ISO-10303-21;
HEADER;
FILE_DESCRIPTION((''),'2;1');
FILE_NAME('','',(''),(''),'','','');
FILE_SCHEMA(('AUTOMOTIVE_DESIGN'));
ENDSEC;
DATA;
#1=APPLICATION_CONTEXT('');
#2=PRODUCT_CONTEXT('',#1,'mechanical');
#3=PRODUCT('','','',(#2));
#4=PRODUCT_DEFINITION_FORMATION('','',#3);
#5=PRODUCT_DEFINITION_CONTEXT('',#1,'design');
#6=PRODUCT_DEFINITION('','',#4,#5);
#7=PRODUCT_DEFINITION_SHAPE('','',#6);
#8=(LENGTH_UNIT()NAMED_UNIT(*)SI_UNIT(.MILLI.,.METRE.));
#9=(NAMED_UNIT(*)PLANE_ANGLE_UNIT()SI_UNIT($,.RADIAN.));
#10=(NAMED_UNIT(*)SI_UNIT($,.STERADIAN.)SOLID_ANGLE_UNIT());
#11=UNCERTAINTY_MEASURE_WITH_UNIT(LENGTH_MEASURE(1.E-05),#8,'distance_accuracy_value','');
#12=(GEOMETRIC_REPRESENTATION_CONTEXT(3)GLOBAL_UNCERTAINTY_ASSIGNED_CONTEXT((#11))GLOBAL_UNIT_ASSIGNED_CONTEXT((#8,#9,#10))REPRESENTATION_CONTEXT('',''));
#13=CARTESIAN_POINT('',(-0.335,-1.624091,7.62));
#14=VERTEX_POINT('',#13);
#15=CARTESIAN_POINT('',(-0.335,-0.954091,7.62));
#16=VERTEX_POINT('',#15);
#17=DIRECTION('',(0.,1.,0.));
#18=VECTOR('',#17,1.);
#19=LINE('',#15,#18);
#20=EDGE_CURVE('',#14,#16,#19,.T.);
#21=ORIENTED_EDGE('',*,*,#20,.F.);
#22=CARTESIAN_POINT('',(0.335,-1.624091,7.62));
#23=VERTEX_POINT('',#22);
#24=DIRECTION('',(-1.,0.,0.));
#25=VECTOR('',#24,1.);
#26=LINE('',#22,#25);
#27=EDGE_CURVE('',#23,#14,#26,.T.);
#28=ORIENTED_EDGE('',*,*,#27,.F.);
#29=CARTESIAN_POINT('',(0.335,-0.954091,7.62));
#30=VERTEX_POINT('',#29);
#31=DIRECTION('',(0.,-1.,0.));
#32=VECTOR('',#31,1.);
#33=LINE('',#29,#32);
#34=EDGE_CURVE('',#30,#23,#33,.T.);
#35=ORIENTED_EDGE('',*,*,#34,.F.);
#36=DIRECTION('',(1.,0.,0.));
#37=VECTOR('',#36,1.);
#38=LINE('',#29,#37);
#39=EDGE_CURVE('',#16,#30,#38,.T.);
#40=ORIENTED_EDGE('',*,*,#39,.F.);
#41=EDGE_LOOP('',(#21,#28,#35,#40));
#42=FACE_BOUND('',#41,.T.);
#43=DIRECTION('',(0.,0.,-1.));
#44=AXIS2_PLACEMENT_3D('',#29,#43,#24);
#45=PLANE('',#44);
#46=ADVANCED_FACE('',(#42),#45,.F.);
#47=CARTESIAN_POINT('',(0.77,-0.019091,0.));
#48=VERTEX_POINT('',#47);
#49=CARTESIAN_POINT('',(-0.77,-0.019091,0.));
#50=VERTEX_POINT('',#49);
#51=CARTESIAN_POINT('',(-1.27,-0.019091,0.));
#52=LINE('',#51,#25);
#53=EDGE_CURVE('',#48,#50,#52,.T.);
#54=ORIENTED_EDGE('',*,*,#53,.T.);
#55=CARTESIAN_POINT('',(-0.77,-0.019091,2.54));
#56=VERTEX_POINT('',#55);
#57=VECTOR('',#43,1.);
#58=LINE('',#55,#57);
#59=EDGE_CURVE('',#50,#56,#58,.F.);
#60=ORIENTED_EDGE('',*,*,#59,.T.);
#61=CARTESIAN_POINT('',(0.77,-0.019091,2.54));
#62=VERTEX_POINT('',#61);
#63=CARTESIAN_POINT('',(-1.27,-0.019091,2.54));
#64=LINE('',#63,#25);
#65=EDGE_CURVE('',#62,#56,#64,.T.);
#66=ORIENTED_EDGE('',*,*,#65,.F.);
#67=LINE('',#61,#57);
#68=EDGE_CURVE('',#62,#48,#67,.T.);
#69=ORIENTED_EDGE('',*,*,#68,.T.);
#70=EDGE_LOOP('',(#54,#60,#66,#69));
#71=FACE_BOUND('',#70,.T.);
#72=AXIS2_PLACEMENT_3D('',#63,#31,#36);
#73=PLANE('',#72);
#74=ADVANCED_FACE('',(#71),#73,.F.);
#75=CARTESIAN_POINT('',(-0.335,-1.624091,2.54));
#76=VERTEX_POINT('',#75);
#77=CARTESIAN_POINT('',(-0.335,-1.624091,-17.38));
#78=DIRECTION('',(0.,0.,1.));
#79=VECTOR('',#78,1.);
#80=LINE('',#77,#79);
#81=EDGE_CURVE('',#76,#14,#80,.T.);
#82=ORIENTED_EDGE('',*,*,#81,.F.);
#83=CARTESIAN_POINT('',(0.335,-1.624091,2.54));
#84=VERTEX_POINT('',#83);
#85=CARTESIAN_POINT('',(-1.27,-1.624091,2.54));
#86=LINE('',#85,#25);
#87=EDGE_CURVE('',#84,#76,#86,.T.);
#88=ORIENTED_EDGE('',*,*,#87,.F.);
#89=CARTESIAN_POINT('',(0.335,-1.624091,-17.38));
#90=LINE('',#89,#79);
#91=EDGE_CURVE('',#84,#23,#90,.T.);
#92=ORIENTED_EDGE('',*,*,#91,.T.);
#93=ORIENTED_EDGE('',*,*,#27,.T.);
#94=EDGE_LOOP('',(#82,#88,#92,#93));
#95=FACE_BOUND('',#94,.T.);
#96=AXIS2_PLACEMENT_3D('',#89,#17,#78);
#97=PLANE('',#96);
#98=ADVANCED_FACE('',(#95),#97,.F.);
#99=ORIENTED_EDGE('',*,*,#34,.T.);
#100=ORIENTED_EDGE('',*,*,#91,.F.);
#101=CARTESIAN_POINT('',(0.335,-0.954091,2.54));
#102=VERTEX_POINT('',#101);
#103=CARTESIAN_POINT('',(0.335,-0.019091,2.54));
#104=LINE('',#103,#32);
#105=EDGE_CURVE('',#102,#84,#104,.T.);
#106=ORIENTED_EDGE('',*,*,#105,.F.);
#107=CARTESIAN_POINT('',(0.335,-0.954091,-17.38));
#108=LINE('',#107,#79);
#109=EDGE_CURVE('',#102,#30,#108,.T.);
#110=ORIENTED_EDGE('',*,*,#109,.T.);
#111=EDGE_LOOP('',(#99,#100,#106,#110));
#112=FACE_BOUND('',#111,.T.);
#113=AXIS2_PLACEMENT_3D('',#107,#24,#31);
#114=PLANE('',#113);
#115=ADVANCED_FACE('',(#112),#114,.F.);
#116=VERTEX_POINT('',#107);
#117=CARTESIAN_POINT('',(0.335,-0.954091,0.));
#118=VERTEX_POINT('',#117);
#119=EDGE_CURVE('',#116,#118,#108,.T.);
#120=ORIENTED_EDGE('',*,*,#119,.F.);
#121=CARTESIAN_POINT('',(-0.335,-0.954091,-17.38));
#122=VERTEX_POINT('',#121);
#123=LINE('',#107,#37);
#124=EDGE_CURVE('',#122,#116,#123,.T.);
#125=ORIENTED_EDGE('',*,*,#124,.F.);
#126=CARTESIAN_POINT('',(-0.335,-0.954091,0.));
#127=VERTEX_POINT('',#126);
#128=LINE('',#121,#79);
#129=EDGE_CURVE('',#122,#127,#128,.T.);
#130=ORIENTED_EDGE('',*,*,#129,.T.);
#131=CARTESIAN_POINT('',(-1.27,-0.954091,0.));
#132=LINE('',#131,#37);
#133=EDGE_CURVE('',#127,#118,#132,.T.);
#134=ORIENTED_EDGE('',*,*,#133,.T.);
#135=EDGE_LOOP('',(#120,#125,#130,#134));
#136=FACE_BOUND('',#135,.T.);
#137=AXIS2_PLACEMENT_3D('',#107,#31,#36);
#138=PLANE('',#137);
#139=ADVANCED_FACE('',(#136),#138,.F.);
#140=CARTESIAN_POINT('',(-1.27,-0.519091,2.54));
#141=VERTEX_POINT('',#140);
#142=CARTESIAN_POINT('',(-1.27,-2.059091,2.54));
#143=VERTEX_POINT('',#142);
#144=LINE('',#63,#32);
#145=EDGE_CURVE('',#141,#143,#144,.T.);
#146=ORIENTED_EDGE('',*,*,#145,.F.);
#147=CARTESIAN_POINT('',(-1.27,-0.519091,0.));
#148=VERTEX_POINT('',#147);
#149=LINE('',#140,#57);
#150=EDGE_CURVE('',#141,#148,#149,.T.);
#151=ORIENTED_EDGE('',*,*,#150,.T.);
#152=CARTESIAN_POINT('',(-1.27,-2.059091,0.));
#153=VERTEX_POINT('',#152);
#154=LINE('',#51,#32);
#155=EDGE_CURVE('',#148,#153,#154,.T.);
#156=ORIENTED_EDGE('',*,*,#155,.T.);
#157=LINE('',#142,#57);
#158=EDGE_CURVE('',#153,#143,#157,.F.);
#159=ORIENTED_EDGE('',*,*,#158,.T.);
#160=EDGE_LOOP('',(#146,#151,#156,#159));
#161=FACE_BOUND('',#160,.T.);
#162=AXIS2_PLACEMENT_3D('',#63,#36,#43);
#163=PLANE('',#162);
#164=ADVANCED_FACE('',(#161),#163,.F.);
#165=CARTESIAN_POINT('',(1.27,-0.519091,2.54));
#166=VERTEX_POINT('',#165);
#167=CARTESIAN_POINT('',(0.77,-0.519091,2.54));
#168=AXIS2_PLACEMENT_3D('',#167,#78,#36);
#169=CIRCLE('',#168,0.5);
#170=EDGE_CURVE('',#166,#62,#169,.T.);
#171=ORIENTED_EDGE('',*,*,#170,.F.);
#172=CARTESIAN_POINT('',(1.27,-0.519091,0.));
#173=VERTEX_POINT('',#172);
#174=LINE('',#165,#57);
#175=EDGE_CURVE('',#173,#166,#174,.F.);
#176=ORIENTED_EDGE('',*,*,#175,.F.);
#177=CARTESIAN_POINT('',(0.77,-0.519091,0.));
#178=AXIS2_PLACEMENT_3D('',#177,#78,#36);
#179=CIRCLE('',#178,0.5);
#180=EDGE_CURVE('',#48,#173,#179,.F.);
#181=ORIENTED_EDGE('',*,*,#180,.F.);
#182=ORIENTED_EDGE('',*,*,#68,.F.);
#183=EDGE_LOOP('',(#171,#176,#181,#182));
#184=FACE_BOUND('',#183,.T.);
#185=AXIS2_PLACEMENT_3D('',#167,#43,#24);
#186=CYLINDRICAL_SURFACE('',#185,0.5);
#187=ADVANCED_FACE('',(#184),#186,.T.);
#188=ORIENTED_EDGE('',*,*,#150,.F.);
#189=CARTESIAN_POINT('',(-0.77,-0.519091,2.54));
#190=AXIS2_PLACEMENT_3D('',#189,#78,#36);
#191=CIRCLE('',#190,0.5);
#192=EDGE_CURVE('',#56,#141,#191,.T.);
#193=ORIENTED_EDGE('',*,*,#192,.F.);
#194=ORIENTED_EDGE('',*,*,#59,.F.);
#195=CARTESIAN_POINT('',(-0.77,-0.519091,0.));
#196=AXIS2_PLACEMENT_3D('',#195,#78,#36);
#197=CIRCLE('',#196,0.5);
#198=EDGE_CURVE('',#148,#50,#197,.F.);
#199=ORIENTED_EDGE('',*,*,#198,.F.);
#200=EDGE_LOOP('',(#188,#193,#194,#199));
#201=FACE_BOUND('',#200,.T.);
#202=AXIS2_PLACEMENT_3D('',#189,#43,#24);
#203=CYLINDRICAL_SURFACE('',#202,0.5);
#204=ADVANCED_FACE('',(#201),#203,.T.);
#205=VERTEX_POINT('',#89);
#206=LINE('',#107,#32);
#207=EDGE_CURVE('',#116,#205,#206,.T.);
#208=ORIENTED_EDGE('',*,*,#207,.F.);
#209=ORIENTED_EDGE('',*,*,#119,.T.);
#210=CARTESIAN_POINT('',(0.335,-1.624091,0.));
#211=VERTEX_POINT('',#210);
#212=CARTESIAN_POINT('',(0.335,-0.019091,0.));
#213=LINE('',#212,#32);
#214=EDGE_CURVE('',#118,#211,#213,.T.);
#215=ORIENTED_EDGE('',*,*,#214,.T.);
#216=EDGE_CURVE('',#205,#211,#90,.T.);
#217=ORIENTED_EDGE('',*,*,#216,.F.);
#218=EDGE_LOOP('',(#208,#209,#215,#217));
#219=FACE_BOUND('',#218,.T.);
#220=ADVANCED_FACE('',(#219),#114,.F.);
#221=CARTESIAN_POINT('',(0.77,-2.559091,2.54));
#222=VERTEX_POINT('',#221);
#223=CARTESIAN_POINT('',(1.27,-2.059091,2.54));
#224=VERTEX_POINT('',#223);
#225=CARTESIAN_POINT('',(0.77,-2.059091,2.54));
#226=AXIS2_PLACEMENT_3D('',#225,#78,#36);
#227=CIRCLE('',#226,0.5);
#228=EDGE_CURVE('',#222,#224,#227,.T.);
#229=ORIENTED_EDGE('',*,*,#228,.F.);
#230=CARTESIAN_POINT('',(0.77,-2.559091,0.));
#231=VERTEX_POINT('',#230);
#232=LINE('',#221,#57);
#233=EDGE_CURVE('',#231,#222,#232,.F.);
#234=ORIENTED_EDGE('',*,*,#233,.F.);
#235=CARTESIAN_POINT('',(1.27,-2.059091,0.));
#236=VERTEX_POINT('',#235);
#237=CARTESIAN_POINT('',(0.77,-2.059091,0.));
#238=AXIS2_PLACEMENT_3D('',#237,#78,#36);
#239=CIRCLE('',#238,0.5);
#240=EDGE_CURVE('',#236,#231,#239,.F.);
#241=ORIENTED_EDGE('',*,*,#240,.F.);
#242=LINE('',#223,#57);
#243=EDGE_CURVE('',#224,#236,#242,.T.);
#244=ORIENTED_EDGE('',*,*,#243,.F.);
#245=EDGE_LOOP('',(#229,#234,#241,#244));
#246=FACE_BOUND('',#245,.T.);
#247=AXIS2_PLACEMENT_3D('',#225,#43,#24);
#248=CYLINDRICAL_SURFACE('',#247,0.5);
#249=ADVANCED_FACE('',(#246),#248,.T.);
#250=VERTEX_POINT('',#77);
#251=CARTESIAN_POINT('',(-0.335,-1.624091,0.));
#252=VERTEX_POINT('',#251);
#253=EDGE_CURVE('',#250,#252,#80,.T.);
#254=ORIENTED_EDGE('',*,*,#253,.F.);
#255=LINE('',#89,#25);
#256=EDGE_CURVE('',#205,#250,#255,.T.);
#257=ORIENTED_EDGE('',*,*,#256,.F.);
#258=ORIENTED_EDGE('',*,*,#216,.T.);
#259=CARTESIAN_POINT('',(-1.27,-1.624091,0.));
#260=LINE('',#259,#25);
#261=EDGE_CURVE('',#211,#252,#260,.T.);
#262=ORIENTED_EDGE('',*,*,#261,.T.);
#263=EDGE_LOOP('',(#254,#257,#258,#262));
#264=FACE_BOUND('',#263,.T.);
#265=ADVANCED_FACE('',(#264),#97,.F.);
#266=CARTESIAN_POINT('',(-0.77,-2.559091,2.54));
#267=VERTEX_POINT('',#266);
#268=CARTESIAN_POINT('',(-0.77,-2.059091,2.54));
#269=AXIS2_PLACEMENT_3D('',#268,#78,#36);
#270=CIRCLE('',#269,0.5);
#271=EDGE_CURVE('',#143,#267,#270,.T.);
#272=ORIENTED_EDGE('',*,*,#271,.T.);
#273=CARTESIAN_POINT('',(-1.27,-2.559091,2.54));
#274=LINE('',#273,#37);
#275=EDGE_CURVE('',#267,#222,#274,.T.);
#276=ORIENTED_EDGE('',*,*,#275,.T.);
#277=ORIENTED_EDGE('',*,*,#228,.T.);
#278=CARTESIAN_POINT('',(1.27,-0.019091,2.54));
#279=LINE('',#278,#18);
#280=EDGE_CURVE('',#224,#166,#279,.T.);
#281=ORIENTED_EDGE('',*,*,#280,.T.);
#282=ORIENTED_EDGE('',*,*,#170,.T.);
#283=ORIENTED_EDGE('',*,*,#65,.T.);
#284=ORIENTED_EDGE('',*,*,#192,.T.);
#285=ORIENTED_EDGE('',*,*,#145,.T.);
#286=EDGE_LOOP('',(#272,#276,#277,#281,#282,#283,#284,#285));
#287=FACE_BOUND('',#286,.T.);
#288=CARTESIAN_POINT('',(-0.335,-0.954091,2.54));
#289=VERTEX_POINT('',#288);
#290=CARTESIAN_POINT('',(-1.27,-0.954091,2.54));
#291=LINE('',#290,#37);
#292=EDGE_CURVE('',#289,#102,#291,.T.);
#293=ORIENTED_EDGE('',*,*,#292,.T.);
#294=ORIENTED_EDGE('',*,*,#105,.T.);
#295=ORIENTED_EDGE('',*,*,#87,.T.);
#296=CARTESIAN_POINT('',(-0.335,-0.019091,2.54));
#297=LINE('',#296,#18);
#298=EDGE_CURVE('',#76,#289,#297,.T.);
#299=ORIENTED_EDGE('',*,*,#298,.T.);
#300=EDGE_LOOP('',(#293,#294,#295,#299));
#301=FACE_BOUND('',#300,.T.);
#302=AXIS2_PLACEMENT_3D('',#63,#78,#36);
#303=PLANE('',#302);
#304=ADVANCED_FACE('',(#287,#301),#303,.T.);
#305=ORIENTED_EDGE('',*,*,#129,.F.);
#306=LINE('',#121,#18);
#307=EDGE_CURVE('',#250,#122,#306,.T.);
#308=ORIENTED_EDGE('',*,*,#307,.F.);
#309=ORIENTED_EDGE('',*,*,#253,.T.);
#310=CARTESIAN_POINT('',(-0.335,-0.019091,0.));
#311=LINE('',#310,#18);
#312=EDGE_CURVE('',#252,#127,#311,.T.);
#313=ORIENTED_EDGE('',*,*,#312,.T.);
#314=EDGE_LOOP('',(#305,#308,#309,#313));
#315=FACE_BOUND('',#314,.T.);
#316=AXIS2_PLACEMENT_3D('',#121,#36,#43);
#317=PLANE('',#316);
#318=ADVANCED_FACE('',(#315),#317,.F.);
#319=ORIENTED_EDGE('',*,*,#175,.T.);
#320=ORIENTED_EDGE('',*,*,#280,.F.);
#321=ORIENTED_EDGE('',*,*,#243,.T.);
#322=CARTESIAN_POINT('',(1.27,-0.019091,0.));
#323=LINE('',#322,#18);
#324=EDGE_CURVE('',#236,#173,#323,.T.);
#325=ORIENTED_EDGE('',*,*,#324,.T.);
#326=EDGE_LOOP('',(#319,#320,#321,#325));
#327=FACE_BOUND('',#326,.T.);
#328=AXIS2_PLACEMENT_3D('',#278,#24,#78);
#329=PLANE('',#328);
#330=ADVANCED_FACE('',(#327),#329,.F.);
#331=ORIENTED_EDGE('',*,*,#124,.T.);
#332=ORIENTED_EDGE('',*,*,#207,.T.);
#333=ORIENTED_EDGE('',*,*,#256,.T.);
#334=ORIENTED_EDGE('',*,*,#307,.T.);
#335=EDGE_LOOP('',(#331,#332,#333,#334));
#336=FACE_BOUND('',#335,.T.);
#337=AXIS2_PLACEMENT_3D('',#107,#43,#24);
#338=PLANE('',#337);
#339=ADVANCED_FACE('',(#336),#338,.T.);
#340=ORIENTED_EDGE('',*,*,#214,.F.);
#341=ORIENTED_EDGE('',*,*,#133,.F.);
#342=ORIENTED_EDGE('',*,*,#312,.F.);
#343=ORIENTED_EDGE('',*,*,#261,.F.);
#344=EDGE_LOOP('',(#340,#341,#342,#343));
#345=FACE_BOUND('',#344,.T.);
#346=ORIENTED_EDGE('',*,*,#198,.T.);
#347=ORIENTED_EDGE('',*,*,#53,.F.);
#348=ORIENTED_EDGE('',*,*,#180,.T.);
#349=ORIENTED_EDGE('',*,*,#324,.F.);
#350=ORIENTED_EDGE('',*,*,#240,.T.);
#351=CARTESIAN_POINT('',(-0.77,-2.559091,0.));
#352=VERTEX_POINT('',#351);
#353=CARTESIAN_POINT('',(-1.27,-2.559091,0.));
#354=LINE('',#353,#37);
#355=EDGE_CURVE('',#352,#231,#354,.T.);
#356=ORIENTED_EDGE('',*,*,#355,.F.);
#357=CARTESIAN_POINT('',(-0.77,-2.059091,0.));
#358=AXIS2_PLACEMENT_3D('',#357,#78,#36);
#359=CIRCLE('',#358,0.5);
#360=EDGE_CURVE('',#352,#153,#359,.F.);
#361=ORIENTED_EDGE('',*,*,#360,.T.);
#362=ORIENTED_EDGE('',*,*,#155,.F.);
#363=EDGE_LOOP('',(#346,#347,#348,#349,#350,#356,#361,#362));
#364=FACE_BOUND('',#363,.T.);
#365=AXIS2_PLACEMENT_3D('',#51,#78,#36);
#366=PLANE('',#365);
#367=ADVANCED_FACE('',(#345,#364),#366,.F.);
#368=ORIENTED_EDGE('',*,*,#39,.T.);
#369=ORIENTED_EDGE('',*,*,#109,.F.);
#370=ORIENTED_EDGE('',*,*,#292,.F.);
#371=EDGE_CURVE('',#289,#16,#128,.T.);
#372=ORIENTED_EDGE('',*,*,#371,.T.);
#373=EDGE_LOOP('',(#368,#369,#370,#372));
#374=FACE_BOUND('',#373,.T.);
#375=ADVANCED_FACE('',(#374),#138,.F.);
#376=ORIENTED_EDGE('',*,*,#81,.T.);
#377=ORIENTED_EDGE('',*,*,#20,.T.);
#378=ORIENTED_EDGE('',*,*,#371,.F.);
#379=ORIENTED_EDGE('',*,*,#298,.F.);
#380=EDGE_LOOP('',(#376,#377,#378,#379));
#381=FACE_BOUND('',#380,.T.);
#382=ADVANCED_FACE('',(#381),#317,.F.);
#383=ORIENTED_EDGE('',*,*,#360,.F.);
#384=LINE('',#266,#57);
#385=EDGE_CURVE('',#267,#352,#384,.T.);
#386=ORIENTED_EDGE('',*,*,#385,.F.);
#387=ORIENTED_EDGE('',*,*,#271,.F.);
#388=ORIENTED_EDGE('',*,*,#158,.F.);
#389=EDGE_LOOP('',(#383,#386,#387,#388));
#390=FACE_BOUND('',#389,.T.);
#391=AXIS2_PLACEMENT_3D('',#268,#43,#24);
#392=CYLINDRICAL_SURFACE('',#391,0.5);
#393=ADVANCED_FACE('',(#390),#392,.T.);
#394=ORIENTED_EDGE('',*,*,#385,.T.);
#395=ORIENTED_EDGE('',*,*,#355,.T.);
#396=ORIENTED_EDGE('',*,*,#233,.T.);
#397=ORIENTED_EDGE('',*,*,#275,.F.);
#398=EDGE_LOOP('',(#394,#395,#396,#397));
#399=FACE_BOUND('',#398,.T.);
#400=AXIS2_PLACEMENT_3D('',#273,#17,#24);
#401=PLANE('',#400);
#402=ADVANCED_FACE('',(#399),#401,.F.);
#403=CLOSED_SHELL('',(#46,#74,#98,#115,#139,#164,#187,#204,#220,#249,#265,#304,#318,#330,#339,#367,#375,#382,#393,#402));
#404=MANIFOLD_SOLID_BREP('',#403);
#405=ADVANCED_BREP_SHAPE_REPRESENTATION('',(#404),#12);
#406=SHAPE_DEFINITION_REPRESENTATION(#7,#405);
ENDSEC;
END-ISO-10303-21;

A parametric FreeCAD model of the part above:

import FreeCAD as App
import Part
import Sketcher
from FreeCAD import Vector
Q = App.Units.Quantity


def edges_at(feature, points):
    """Names of the edges that pass closest to the given points."""
    edges = feature.Shape.Edges
    near = lambda p: min(range(len(edges)), key=lambda i: edges[i].distToShape(Part.Vertex(*p))[0])
    return sorted({f"Edge{near(p) + 1}" for p in points})


def add_polygon(sketch, points):
    """Adds a closed chain of lines whose ends are joined by coincident constraints."""
    first, n = sketch.GeometryCount, len(points)
    for a, b in zip(points, points[1:] + points[:1]):
        sketch.addGeometry(Part.LineSegment(App.Vector(*a, 0), App.Vector(*b, 0)), False)
    for i in range(n):
        sketch.addConstraint(Sketcher.Constraint("Coincident", first + i, 2, first + (i + 1) % n, 1))

doc = App.newDocument("Part")
body = doc.addObject("PartDesign::Body", "Body")

# Sketch on XY plane
sketch1 = doc.addObject("Sketcher::SketchObject", "Sketch")
body.addObject(sketch1)
sketch1.AttachmentSupport = (doc.XY_Plane, [""])
sketch1.MapMode = "FlatFace"
add_polygon(sketch1, [(-1.3, 0), (-1.3, -2.6), (1.3, -2.6), (1.3, 0)])  # lines 0-3
sketch1.addConstraint(Sketcher.Constraint("Vertical", 0))
sketch1.addConstraint(Sketcher.Constraint("Horizontal", 1))
sketch1.addConstraint(Sketcher.Constraint("Vertical", 2))
sketch1.addConstraint(Sketcher.Constraint("Horizontal", 3))
sketch1.addConstraint(Sketcher.Constraint("Equal", 3, 0))
sketch1.addConstraint(Sketcher.Constraint("DistanceX", 1, 1, 1, 2, Q("2.54 mm")))
sketch1.addConstraint(Sketcher.Constraint("DistanceX", 0, 2, -1, 1, Q("1.27 mm")))
sketch1.addConstraint(Sketcher.Constraint("DistanceY", 0, 2, -1, 1, Q("2.559091 mm")))
pad1 = doc.addObject("PartDesign::Pad", "Pad")
body.addObject(pad1)
pad1.Profile = sketch1
pad1.Length = 2.54

# Sketch on XY plane
sketch2 = doc.addObject("Sketcher::SketchObject", "Sketch001")
body.addObject(sketch2)
sketch2.AttachmentSupport = (doc.XY_Plane, [""])
sketch2.MapMode = "FlatFace"
sketch2.AttachmentOffset = App.Placement(Vector(0, 0, 7.62), App.Rotation())
add_polygon(sketch2, [(0.3, -1), (0.3, -1.6), (-0.3, -1.6), (-0.3, -1)])  # lines 0-3
sketch2.addConstraint(Sketcher.Constraint("Vertical", 0))
sketch2.addConstraint(Sketcher.Constraint("Horizontal", 1))
sketch2.addConstraint(Sketcher.Constraint("Vertical", 2))
sketch2.addConstraint(Sketcher.Constraint("Horizontal", 3))
sketch2.addConstraint(Sketcher.Constraint("Equal", 3, 0))
sketch2.addConstraint(Sketcher.Constraint("DistanceX", 1, 2, 1, 1, Q("0.67 mm")))
sketch2.addConstraint(Sketcher.Constraint("DistanceX", -1, 1, 0, 2, Q("0.335 mm")))
sketch2.addConstraint(Sketcher.Constraint("DistanceY", 0, 2, -1, 1, Q("1.624091 mm")))

# Sketch on XZ plane
sketch3 = doc.addObject("Sketcher::SketchObject", "Sketch002")
body.addObject(sketch3)
sketch3.AttachmentSupport = (doc.XZ_Plane, [""])
sketch3.MapMode = "FlatFace"
sketch3.AttachmentOffset = App.Placement(Vector(0, 0, 1.299091), App.Rotation())
sketch3.addGeometry(Part.LineSegment(Vector(0, -17, 0), Vector(0, 8, 0)), False)
sketch3.addConstraint(Sketcher.Constraint("Vertical", 0))
sketch3.addConstraint(Sketcher.Constraint("PointOnObject", 0, 1, -2))
sketch3.addConstraint(Sketcher.Constraint("DistanceY", 0, 1, 0, 2, Q("25 mm")))
sketch3.addConstraint(Sketcher.Constraint("DistanceY", 0, 1, -1, 1, Q("17.38 mm")))
doc.recompute()

additivepipe = doc.addObject("PartDesign::AdditivePipe", "AdditivePipe")
body.addObject(additivepipe)
additivepipe.Profile = sketch2
additivepipe.Spine = (sketch3, ["Edge1"])
doc.recompute()

fillet = doc.addObject("PartDesign::Fillet", "Fillet")
body.addObject(fillet)
fillet.Base = (additivepipe, edges_at(additivepipe, [
    (-1.27, -0.019, 1.27),
    (1.27, -0.019, 1.27),
    (1.27, -2.559, 1.27),
    (-1.27, -2.559, 1.27),
]))
fillet.Radius = 0.5

doc.recompute()
